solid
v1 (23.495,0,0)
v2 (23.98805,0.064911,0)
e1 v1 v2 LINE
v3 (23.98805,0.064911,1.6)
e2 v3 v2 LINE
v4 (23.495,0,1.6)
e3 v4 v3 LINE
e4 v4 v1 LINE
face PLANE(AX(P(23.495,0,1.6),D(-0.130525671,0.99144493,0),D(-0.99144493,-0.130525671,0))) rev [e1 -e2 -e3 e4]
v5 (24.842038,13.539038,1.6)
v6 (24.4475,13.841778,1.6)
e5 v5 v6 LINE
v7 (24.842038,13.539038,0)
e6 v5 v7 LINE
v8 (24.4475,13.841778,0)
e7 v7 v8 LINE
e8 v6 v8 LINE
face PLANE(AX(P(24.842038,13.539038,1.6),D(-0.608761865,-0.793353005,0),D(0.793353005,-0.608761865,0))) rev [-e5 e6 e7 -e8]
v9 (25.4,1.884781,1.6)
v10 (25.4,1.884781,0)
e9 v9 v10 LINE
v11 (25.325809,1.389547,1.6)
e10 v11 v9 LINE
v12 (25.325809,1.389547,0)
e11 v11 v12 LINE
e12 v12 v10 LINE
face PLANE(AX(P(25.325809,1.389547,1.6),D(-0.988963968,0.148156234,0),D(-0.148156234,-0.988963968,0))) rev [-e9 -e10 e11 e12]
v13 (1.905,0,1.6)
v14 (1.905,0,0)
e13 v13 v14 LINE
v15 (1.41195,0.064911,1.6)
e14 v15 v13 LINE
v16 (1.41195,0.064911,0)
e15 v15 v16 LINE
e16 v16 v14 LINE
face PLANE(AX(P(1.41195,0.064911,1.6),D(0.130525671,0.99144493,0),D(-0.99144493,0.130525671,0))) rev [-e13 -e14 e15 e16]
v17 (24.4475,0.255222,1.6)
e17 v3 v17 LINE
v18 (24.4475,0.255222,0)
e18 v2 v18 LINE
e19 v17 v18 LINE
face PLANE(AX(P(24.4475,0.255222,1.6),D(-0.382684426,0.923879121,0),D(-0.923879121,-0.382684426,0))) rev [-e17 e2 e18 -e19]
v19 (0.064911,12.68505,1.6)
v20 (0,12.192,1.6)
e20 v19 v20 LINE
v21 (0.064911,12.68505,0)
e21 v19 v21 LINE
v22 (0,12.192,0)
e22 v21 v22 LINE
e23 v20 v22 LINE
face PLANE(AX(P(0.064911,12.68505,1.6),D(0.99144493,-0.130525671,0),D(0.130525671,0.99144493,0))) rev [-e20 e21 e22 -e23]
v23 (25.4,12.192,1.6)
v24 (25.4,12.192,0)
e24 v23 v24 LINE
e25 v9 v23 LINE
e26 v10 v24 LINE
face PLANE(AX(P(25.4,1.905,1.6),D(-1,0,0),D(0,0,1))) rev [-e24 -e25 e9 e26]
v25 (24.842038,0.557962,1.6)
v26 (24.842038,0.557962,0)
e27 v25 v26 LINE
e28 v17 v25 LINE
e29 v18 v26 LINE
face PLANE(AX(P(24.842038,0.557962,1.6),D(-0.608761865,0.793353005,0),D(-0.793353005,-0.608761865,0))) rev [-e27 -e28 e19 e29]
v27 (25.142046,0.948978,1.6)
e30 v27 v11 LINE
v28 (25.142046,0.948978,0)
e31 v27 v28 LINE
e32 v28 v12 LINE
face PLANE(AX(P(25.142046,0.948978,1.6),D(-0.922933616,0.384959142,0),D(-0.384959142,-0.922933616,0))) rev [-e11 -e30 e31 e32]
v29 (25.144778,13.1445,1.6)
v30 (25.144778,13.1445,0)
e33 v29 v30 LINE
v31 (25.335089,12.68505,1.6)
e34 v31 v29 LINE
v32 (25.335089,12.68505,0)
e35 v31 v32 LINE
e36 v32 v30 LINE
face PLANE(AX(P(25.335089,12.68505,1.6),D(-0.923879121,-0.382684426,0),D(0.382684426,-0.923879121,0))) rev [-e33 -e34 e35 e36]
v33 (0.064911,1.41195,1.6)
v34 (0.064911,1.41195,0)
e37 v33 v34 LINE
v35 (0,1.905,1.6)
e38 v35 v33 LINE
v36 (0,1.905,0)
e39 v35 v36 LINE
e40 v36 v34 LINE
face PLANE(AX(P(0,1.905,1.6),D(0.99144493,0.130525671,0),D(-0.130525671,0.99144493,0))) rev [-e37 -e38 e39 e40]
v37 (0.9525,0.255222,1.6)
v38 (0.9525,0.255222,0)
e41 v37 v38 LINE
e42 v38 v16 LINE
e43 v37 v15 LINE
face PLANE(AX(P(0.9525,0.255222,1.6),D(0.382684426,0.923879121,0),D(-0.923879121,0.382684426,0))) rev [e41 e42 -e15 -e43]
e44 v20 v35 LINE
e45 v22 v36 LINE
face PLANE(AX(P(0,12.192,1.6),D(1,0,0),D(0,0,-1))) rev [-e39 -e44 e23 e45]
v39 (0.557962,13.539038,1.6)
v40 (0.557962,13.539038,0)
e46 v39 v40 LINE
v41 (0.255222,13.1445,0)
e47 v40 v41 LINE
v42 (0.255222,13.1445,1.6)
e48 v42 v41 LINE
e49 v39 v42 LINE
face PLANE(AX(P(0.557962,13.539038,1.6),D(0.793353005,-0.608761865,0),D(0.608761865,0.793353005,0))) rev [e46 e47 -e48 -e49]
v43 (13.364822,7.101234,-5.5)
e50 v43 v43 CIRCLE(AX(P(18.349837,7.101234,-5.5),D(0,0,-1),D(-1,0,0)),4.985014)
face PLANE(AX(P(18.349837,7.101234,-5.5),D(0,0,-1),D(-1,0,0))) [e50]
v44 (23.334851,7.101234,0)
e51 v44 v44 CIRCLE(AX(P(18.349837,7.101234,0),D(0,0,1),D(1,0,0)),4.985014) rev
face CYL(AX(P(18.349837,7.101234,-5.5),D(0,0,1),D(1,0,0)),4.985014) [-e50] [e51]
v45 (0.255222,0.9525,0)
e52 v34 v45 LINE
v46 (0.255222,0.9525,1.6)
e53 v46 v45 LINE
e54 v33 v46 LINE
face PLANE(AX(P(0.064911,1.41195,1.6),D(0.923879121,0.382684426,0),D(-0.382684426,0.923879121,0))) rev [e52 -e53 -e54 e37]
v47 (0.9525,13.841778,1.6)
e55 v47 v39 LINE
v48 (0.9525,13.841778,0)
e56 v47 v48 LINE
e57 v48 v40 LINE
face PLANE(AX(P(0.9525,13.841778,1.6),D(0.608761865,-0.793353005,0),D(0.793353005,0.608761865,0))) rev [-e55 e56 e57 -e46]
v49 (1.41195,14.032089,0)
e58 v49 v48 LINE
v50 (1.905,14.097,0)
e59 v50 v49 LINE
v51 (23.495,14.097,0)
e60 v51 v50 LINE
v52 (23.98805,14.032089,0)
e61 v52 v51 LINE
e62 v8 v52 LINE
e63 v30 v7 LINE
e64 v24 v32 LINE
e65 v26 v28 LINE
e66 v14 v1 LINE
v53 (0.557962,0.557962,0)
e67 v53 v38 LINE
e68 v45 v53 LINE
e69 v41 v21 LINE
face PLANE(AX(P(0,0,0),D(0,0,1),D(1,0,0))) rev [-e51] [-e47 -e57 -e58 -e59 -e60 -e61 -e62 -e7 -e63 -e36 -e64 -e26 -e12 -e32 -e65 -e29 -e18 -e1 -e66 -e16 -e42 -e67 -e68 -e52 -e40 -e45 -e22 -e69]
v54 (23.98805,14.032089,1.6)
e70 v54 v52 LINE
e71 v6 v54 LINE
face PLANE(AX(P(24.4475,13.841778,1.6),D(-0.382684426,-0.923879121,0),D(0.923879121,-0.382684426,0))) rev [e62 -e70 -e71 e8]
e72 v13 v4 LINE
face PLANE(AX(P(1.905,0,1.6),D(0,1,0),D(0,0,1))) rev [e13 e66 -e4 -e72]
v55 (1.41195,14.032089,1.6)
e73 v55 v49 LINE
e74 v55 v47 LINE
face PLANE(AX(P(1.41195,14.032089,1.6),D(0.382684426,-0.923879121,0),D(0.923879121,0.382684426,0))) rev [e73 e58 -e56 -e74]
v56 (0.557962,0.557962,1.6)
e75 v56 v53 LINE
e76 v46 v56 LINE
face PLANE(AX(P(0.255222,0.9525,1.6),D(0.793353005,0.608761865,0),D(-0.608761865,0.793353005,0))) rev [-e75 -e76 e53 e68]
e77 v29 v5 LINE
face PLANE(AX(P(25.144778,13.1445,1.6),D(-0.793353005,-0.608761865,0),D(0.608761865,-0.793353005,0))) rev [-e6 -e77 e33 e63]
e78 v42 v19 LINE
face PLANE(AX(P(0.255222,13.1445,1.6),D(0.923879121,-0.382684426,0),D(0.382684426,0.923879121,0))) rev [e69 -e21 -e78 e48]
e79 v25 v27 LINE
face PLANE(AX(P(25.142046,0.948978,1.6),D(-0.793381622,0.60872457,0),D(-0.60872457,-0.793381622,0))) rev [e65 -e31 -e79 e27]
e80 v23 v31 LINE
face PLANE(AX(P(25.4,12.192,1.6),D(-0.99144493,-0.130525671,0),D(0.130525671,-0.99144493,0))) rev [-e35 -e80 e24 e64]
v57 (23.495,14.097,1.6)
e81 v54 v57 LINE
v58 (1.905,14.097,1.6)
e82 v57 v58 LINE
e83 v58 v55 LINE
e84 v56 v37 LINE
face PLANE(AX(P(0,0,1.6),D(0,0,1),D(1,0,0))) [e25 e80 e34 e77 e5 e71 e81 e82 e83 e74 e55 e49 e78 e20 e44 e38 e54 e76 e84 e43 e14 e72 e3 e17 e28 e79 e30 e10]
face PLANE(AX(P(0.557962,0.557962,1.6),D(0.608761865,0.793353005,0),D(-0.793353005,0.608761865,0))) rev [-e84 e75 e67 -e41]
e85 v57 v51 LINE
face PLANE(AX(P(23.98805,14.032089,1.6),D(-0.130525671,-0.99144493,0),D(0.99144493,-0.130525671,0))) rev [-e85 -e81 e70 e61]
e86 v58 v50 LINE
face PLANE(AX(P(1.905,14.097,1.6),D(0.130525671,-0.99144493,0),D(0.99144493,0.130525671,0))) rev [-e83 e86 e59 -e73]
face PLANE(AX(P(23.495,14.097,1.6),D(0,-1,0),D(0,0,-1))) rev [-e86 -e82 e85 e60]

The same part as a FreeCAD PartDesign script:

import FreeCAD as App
import Part
import Sketcher
from FreeCAD import Vector
Q = App.Units.Quantity


def add_polygon(sketch, points):
    """Adds a closed chain of lines whose ends are joined by coincident constraints."""
    first, n = sketch.GeometryCount, len(points)
    for a, b in zip(points, points[1:] + points[:1]):
        sketch.addGeometry(Part.LineSegment(App.Vector(*a, 0), App.Vector(*b, 0)), False)
    for i in range(n):
        sketch.addConstraint(Sketcher.Constraint("Coincident", first + i, 2, first + (i + 1) % n, 1))

doc = App.newDocument("Part")
body = doc.addObject("PartDesign::Body", "Body")

sketch1 = body.newObject("Sketcher::SketchObject", "Sketch")
sketch1.AttachmentSupport = (doc.getObject("XY_Plane"), [""])
sketch1.MapMode = "FlatFace"
add_polygon(sketch1, [(0, 12.19), (0, 1.91), (0.06, 1.41), (0.26, 0.95), (0.56, 0.56), (0.95, 0.26), (1.41, 0.06), (1.91, 0), (23.5, 0), (23.99, 0.06), (24.45, 0.26), (24.84, 0.56), (25.14, 0.95), (25.33, 1.39), (25.4, 1.88), (25.4, 12.19), (25.34, 12.69), (25.14, 13.14), (24.84, 13.54), (24.45, 13.84), (23.99, 14.03), (23.5, 14.1), (1.91, 14.1), (1.41, 14.03), (0.95, 13.84), (0.56, 13.54), (0.26, 13.14), (0.06, 12.69)])
sketch1.addConstraint([
    Sketcher.Constraint("Vertical", 0),
    Sketcher.Constraint("Horizontal", 7),
    Sketcher.Constraint("Vertical", 14),
    Sketcher.Constraint("Horizontal", 21),
    Sketcher.Constraint("PointOnObject", 0, 2, -2),
    Sketcher.Constraint("PointOnObject", 6, 2, -1),
    Sketcher.Constraint("Perpendicular", 1, 8),
    Sketcher.Constraint("Perpendicular", 2, 9),
    Sketcher.Constraint("Perpendicular", 3, 10),
    Sketcher.Constraint("Perpendicular", 8, 15),
    Sketcher.Constraint("Perpendicular", 9, 16),
    Sketcher.Constraint("Perpendicular", 10, 17),
    Sketcher.Constraint("Parallel", 4, 18),
    Sketcher.Constraint("Parallel", 5, 19),
    Sketcher.Constraint("Parallel", 6, 20),
    Sketcher.Constraint("Perpendicular", 15, 22),
    Sketcher.Constraint("Perpendicular", 16, 23),
    Sketcher.Constraint("Perpendicular", 17, 24),
    Sketcher.Constraint("Perpendicular", 18, 25),
    Sketcher.Constraint("Perpendicular", 19, 26),
    Sketcher.Constraint("Perpendicular", 20, 27),
    Sketcher.Constraint("Horizontal", 5, 2, 8, 2),
    Sketcher.Constraint("Horizontal", 4, 2, 9, 2),
    Sketcher.Constraint("Horizontal", 3, 2, 10, 2),
    Sketcher.Constraint("Horizontal", 19, 2, 22, 2),
    Sketcher.Constraint("Horizontal", 18, 2, 23, 2),
    Sketcher.Constraint("Horizontal", 17, 2, 24, 2),
    Sketcher.Constraint("Horizontal", 16, 2, 25, 2),
    Sketcher.Constraint("Horizontal", 15, 2, 26, 2),
    Sketcher.Constraint("Horizontal", 14, 2, 27, 2),
    Sketcher.Constraint("Vertical", 10, 2, 17, 2),
    Sketcher.Constraint("Vertical", 9, 2, 18, 2),
    Sketcher.Constraint("Vertical", 8, 2, 19, 2),
    Sketcher.Constraint("Vertical", 7, 2, 20, 2),
    Sketcher.Constraint("Vertical", 6, 2, 21, 2),
    Sketcher.Constraint("Vertical", 5, 2, 22, 2),
    Sketcher.Constraint("Vertical", 4, 2, 23, 2),
    Sketcher.Constraint("Vertical", 3, 2, 24, 2),
    Sketcher.Constraint("Vertical", 2, 2, 25, 2),
    Sketcher.Constraint("Vertical", 1, 2, 26, 2),
    Sketcher.Constraint("Equal", 1, 2),
    Sketcher.Constraint("Equal", 2, 3),
    Sketcher.Constraint("Equal", 3, 4),
    Sketcher.Constraint("Equal", 4, 5),
    Sketcher.Constraint("Equal", 5, 6),
    Sketcher.Constraint("DistanceX", 7, 1, 7, 2, Q("21.59 mm")),
    Sketcher.Constraint("DistanceX", -1, 1, 13, 2, Q("25.4 mm")),
    Sketcher.Constraint("DistanceY", 0, 2, 0, 1, Q("10.287 mm")),
    Sketcher.Constraint("DistanceX", 4, 2, 9, 2, Q("23.495 mm")),
    Sketcher.Constraint("DistanceY", 14, 1, 14, 2, Q("10.307219 mm")),
    Sketcher.Constraint("DistanceX", 5, 2, 8, 2, Q("22.5761 mm")),
    Sketcher.Constraint("Distance", 13, Q("0.500761 mm")),
    Sketcher.Constraint("DistanceX", -1, 1, 1, 2, Q("0.064911 mm")),
    Sketcher.Constraint("DistanceY", -1, 1, 11, 2, Q("0.948978 mm")),
    Sketcher.Constraint("DistanceX", -1, 1, 12, 2, Q("25.325809 mm")),
    Sketcher.Constraint("DistanceX", 10, 2, 11, 2, Q("0.300008 mm")),
])
pad1 = body.newObject("PartDesign::Pad", "Pad")
pad1.Profile = sketch1
pad1.Length = 1.6

sketch2 = body.newObject("Sketcher::SketchObject", "Sketch001")
sketch2.AttachmentSupport = (doc.getObject("XY_Plane"), [""])
sketch2.MapMode = "FlatFace"
sketch2.addGeometry(Part.Circle(Vector(18.3, 7.1, 0), Vector(0, 0, 1), 5), False)
sketch2.addConstraint([
    Sketcher.Constraint("Diameter", 0, Q("9.970029 mm")),
    Sketcher.Constraint("DistanceX", -1, 1, 0, 3, Q("18.349837 mm")),
    Sketcher.Constraint("DistanceY", -1, 1, 0, 3, Q("7.101234 mm")),
])
pad2 = body.newObject("PartDesign::Pad", "Pad001")
pad2.Profile = sketch2
pad2.Length = 5.5
pad2.Reversed = True

doc.recompute()
